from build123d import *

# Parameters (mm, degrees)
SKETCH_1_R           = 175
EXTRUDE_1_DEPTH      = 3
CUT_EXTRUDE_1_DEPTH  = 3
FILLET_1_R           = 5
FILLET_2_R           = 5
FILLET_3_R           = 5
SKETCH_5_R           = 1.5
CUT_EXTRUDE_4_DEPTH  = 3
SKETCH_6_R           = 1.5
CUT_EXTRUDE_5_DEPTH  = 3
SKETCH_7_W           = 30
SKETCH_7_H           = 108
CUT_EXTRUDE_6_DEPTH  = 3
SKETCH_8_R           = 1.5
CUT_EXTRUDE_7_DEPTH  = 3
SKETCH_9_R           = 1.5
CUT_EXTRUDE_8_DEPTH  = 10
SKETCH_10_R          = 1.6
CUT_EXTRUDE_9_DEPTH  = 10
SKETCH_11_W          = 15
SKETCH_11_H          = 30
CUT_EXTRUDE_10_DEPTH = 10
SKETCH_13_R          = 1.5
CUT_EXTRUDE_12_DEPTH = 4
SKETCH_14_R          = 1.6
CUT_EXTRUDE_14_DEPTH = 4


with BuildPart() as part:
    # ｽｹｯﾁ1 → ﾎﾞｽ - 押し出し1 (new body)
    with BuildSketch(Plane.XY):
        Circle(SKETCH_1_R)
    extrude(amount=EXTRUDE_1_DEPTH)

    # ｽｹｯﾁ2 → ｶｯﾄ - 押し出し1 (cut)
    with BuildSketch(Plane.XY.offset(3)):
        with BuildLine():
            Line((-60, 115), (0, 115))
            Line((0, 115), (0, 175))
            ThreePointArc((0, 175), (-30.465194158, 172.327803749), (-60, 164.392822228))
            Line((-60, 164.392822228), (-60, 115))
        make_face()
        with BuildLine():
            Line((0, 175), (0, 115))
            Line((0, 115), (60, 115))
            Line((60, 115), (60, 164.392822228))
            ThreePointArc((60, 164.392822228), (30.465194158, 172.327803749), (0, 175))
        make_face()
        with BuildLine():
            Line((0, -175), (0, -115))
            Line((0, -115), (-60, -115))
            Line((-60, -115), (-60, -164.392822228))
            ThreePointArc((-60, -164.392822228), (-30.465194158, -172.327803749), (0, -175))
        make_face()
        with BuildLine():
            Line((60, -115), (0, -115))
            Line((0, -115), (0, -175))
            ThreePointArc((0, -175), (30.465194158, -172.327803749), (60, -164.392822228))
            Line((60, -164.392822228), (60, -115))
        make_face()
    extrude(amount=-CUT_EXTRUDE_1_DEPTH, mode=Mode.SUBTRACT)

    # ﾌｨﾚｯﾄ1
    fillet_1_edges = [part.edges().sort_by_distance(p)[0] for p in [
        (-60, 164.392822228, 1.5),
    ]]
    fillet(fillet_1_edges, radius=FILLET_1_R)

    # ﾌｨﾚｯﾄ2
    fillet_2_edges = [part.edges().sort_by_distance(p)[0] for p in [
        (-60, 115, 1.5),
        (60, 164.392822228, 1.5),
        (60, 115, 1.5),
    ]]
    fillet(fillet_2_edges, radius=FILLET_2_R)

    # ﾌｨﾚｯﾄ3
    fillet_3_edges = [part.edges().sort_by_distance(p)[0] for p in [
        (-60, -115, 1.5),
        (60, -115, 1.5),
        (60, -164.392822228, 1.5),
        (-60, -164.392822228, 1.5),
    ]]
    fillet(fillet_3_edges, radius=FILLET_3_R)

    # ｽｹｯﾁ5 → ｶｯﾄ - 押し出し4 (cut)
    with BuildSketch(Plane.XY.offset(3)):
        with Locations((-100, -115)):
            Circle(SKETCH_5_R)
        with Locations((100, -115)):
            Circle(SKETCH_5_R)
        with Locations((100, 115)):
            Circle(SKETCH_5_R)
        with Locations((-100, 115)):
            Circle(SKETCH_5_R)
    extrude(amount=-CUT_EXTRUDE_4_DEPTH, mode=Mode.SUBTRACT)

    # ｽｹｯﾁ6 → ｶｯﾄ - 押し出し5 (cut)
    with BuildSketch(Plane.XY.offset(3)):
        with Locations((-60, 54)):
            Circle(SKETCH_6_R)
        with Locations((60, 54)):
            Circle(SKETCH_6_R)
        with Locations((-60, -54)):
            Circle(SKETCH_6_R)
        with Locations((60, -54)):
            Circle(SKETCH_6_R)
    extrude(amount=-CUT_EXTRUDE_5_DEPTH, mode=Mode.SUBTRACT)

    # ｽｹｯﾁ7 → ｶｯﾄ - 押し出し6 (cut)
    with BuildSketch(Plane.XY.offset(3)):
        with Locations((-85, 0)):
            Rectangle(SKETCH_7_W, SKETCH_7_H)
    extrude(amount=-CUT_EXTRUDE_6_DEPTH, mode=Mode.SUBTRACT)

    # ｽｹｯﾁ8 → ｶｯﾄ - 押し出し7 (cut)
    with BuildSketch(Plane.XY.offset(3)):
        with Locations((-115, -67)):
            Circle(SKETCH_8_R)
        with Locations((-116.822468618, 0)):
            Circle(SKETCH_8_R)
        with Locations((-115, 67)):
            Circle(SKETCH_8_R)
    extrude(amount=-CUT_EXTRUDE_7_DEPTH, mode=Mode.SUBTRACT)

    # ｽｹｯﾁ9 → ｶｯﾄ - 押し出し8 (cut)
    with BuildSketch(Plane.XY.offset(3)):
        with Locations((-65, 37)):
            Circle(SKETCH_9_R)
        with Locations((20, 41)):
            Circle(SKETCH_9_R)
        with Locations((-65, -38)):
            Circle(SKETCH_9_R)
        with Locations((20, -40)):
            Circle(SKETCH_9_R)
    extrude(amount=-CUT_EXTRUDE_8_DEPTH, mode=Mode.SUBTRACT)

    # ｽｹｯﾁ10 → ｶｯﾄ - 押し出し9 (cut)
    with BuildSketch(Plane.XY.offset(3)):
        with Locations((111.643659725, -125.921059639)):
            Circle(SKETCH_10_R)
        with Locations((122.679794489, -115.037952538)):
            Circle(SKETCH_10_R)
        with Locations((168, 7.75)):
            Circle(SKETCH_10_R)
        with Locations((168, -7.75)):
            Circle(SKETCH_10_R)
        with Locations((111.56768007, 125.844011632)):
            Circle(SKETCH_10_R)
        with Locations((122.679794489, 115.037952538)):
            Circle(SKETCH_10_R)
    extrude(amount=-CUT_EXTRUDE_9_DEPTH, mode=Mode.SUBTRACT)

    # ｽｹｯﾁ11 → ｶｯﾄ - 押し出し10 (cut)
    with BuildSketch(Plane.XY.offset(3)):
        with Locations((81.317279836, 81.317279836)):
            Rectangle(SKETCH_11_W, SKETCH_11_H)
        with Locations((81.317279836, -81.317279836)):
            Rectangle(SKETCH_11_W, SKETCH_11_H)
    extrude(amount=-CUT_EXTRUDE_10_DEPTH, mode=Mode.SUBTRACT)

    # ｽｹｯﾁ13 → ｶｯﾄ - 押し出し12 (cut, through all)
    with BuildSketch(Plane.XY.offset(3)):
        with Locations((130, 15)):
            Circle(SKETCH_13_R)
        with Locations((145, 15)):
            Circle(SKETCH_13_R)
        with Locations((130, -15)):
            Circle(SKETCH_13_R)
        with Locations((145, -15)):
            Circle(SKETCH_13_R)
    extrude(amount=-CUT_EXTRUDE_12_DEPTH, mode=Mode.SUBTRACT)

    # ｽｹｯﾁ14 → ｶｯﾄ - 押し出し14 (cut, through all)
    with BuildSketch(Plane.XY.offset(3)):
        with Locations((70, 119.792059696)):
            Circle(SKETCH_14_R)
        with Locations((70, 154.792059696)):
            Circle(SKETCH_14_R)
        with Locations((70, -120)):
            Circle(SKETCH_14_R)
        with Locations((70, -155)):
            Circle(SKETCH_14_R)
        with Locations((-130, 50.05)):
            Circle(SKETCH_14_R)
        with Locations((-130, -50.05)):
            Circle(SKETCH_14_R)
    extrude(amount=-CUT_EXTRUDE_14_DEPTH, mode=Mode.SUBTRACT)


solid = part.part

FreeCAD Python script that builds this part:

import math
import FreeCAD as App
import Part
import Sketcher


def edges_at(feature, points):
    """Names of the edges that pass closest to the given points."""
    edges = feature.Shape.Edges
    near = lambda p: min(range(len(edges)), key=lambda i: edges[i].distToShape(Part.Vertex(*p))[0])
    return sorted({f"Edge{near(p) + 1}" for p in points})


def add_polygon(sketch, points):
    """Adds a closed chain of lines whose ends are joined by coincident constraints."""
    first, n = sketch.GeometryCount, len(points)
    for a, b in zip(points, points[1:] + points[:1]):
        sketch.addGeometry(Part.LineSegment(App.Vector(*a, 0), App.Vector(*b, 0)), False)
    for i in range(n):
        sketch.addConstraint(Sketcher.Constraint("Coincident", first + i, 2, first + (i + 1) % n, 1))

doc = App.newDocument("Part")
body = doc.addObject("PartDesign::Body", "Body")

sketch1 = body.newObject("Sketcher::SketchObject", "Sketch")
sketch1.AttachmentSupport = (doc.getObject("XY_Plane"), [""])
sketch1.MapMode = "FlatFace"
sketch1.addGeometry(Part.Circle(App.Vector(0, 0, 0), App.Vector(0, 0, 1), 175), False)
sketch1.addConstraint(Sketcher.Constraint("Coincident", 0, 3, -1, 1))
sketch1.addConstraint(Sketcher.Constraint("Diameter", 0, 350.0))
pad1 = body.newObject("PartDesign::Pad", "Pad")
pad1.Profile = sketch1
pad1.Length = 3

sketch2 = body.newObject("Sketcher::SketchObject", "Sketch001")
sketch2.AttachmentSupport = (doc.getObject("XY_Plane"), [""])
sketch2.MapMode = "FlatFace"
sketch2.AttachmentOffset = App.Placement(App.Vector(0, 0, 3), App.Rotation())
sketch2.addGeometry(Part.LineSegment(App.Vector(-60, 115, 0), App.Vector(60, 115, 0)), False)
sketch2.addGeometry(Part.LineSegment(App.Vector(60, 115, 0), App.Vector(60, 164.392822, 0)), False)
sketch2.addGeometry(Part.ArcOfCircle(Part.Circle(App.Vector(0, 0, 0), App.Vector(0, 0, 1), 175), math.radians(69.948957), math.radians(90)), False)
sketch2.addGeometry(Part.ArcOfCircle(Part.Circle(App.Vector(0, 0, 0), App.Vector(0, 0, 1), 175), math.radians(90), math.radians(110.051043)), False)
sketch2.addGeometry(Part.LineSegment(App.Vector(-60, 164.392822, 0), App.Vector(-60, 115, 0)), False)
sketch2.addGeometry(Part.LineSegment(App.Vector(-60, -115, 0), App.Vector(-60, -164.392822, 0)), False)
sketch2.addGeometry(Part.ArcOfCircle(Part.Circle(App.Vector(0, 0, 0), App.Vector(0, 0, 1), 175), math.radians(-110.051043), math.radians(-90)), False)
sketch2.addGeometry(Part.ArcOfCircle(Part.Circle(App.Vector(0, 0, 0), App.Vector(0, 0, 1), 175), math.radians(-90), math.radians(-69.948957)), False)
sketch2.addGeometry(Part.LineSegment(App.Vector(60, -164.392822, 0), App.Vector(60, -115, 0)), False)
sketch2.addGeometry(Part.LineSegment(App.Vector(60, -115, 0), App.Vector(-60, -115, 0)), False)
sketch2.addConstraint(Sketcher.Constraint("Coincident", 0, 2, 1, 1))
sketch2.addConstraint(Sketcher.Constraint("Coincident", 1, 2, 2, 1))
sketch2.addConstraint(Sketcher.Constraint("Tangent", 2, 2, 3, 1))
sketch2.addConstraint(Sketcher.Constraint("Coincident", 3, 2, 4, 1))
sketch2.addConstraint(Sketcher.Constraint("Coincident", 4, 2, 0, 1))
sketch2.addConstraint(Sketcher.Constraint("Coincident", 5, 2, 6, 1))
sketch2.addConstraint(Sketcher.Constraint("Tangent", 6, 2, 7, 1))
sketch2.addConstraint(Sketcher.Constraint("Coincident", 7, 2, 8, 1))
sketch2.addConstraint(Sketcher.Constraint("Coincident", 8, 2, 9, 1))
sketch2.addConstraint(Sketcher.Constraint("Coincident", 9, 2, 5, 1))
sketch2.addConstraint(Sketcher.Constraint("Horizontal", 0))
sketch2.addConstraint(Sketcher.Constraint("Vertical", 1))
sketch2.addConstraint(Sketcher.Constraint("Vertical", 4))
sketch2.addConstraint(Sketcher.Constraint("Vertical", 5))
sketch2.addConstraint(Sketcher.Constraint("Vertical", 8))
sketch2.addConstraint(Sketcher.Constraint("Horizontal", 9))
sketch2.addConstraint(Sketcher.Constraint("Coincident", 2, 3, -1, 1))
sketch2.addConstraint(Sketcher.Constraint("Coincident", 6, 3, -1, 1))
sketch2.addConstraint(Sketcher.Constraint("Equal", 2, 3))
sketch2.addConstraint(Sketcher.Constraint("Equal", 3, 6))
sketch2.addConstraint(Sketcher.Constraint("Equal", 6, 7))
sketch2.addConstraint(Sketcher.Constraint("Symmetric", 4, 2, 8, 2, -1, 1))
sketch2.addConstraint(Sketcher.Constraint("PointOnObject", 2, 2, -2))
sketch2.addConstraint(Sketcher.Constraint("PointOnObject", 6, 2, -2))
sketch2.addConstraint(Sketcher.Constraint("Horizontal", 1, 2, 3, 2))
sketch2.addConstraint(Sketcher.Constraint("Horizontal", 5, 2, 7, 2))
sketch2.addConstraint(Sketcher.Constraint("Radius", 2, 175.0))
sketch2.addConstraint(Sketcher.Constraint("DistanceX", 0, 1, 0, 2, 120.0))
sketch2.addConstraint(Sketcher.Constraint("DistanceY", -1, 1, 0, 2, 115.0))
pocket1 = body.newObject("PartDesign::Pocket", "Pocket")
pocket1.Profile = sketch2
pocket1.Length = 3
doc.recompute()

fillet = body.newObject("PartDesign::Fillet", "Fillet")
fillet.Base = (pocket1, edges_at(pocket1, [(-60, 164.393, 1.5)]))
fillet.Radius = 5
doc.recompute()

fillet2 = body.newObject("PartDesign::Fillet", "Fillet001")
fillet2.Base = (fillet, edges_at(fillet, [(-60, 115, 1.5), (60, 164.393, 1.5), (60, 115, 1.5)]))
fillet2.Radius = 5
doc.recompute()

fillet3 = body.newObject("PartDesign::Fillet", "Fillet002")
fillet3.Base = (fillet2, edges_at(fillet2, [
    (-60, -115, 1.5),
    (60, -115, 1.5),
    (60, -164.393, 1.5),
    (-60, -164.393, 1.5),
]))
fillet3.Radius = 5

sketch3 = body.newObject("Sketcher::SketchObject", "Sketch002")
sketch3.AttachmentSupport = (doc.getObject("XY_Plane"), [""])
sketch3.MapMode = "FlatFace"
sketch3.AttachmentOffset = App.Placement(App.Vector(0, 0, 3), App.Rotation())
sketch3.addGeometry(Part.Circle(App.Vector(-100, -115, 0), App.Vector(0, 0, 1), 1.5), False)
sketch3.addGeometry(Part.Circle(App.Vector(100, -115, 0), App.Vector(0, 0, 1), 1.5), False)
sketch3.addGeometry(Part.Circle(App.Vector(100, 115, 0), App.Vector(0, 0, 1), 1.5), False)
sketch3.addGeometry(Part.Circle(App.Vector(-100, 115, 0), App.Vector(0, 0, 1), 1.5), False)
sketch3.addConstraint(Sketcher.Constraint("Equal", 0, 1))
sketch3.addConstraint(Sketcher.Constraint("Equal", 1, 2))
sketch3.addConstraint(Sketcher.Constraint("Equal", 2, 3))
sketch3.addConstraint(Sketcher.Constraint("Symmetric", 0, 3, 2, 3, -1, 1))
sketch3.addConstraint(Sketcher.Constraint("Symmetric", 1, 3, 3, 3, -1, 1))
sketch3.addConstraint(Sketcher.Constraint("Symmetric", 0, 3, 1, 3, -2))
sketch3.addConstraint(Sketcher.Constraint("Diameter", 0, 3.0))
sketch3.addConstraint(Sketcher.Constraint("DistanceX", 0, 3, -1, 1, 100.0))
sketch3.addConstraint(Sketcher.Constraint("DistanceY", 0, 3, -1, 1, 115.0))
pocket2 = body.newObject("PartDesign::Pocket", "Pocket001")
pocket2.Profile = sketch3
pocket2.Length = 3

sketch4 = body.newObject("Sketcher::SketchObject", "Sketch003")
sketch4.AttachmentSupport = (doc.getObject("XY_Plane"), [""])
sketch4.MapMode = "FlatFace"
sketch4.AttachmentOffset = App.Placement(App.Vector(0, 0, 3), App.Rotation())
sketch4.addGeometry(Part.Circle(App.Vector(-60, 54, 0), App.Vector(0, 0, 1), 1.5), False)
sketch4.addGeometry(Part.Circle(App.Vector(60, 54, 0), App.Vector(0, 0, 1), 1.5), False)
sketch4.addGeometry(Part.Circle(App.Vector(-60, -54, 0), App.Vector(0, 0, 1), 1.5), False)
sketch4.addGeometry(Part.Circle(App.Vector(60, -54, 0), App.Vector(0, 0, 1), 1.5), False)
sketch4.addConstraint(Sketcher.Constraint("Equal", 0, 1))
sketch4.addConstraint(Sketcher.Constraint("Equal", 1, 2))
sketch4.addConstraint(Sketcher.Constraint("Equal", 2, 3))
sketch4.addConstraint(Sketcher.Constraint("Symmetric", 1, 3, 2, 3, -1, 1))
sketch4.addConstraint(Sketcher.Constraint("Symmetric", 0, 3, 3, 3, -1, 1))
sketch4.addConstraint(Sketcher.Constraint("Symmetric", 0, 3, 1, 3, -2))
sketch4.addConstraint(Sketcher.Constraint("Diameter", 0, 3.0))
sketch4.addConstraint(Sketcher.Constraint("DistanceX", 0, 3, -1, 1, 60.0))
sketch4.addConstraint(Sketcher.Constraint("DistanceY", -1, 1, 0, 3, 54.0))
pocket3 = body.newObject("PartDesign::Pocket", "Pocket002")
pocket3.Profile = sketch4
pocket3.Length = 3

sketch5 = body.newObject("Sketcher::SketchObject", "Sketch004")
sketch5.AttachmentSupport = (doc.getObject("XY_Plane"), [""])
sketch5.MapMode = "FlatFace"
sketch5.AttachmentOffset = App.Placement(App.Vector(0, 0, 3), App.Rotation())
add_polygon(sketch5, [(-100, 54), (-100, -54), (-70, -54), (-70, 54)])
sketch5.addConstraint(Sketcher.Constraint("Vertical", 0))
sketch5.addConstraint(Sketcher.Constraint("Horizontal", 1))
sketch5.addConstraint(Sketcher.Constraint("Vertical", 2))
sketch5.addConstraint(Sketcher.Constraint("Horizontal", 3))
sketch5.addConstraint(Sketcher.Constraint("DistanceX", 1, 1, 1, 2, 30.0))
sketch5.addConstraint(Sketcher.Constraint("DistanceY", 0, 2, 0, 1, 108.0))
sketch5.addConstraint(Sketcher.Constraint("DistanceX", 0, 2, -1, 1, 100.0))
sketch5.addConstraint(Sketcher.Constraint("DistanceY", 0, 2, -1, 1, 54.0))
pocket4 = body.newObject("PartDesign::Pocket", "Pocket003")
pocket4.Profile = sketch5
pocket4.Length = 3

sketch6 = body.newObject("Sketcher::SketchObject", "Sketch005")
sketch6.AttachmentSupport = (doc.getObject("XY_Plane"), [""])
sketch6.MapMode = "FlatFace"
sketch6.AttachmentOffset = App.Placement(App.Vector(0, 0, 3), App.Rotation())
sketch6.addGeometry(Part.Circle(App.Vector(-115, -67, 0), App.Vector(0, 0, 1), 1.5), False)
sketch6.addGeometry(Part.Circle(App.Vector(-116.822469, 0, 0), App.Vector(0, 0, 1), 1.5), False)
sketch6.addGeometry(Part.Circle(App.Vector(-115, 67, 0), App.Vector(0, 0, 1), 1.5), False)
sketch6.addConstraint(Sketcher.Constraint("Equal", 0, 1))
sketch6.addConstraint(Sketcher.Constraint("Equal", 1, 2))
sketch6.addConstraint(Sketcher.Constraint("Symmetric", 0, 3, 2, 3, -1))
sketch6.addConstraint(Sketcher.Constraint("PointOnObject", 1, 3, -1))
sketch6.addConstraint(Sketcher.Constraint("Diameter", 0, 3.0))
sketch6.addConstraint(Sketcher.Constraint("DistanceX", 0, 3, -1, 1, 115.0))
sketch6.addConstraint(Sketcher.Constraint("DistanceY", 0, 3, -1, 1, 67.0))
sketch6.addConstraint(Sketcher.Constraint("DistanceX", 1, 3, -1, 1, 116.822469))
pocket5 = body.newObject("PartDesign::Pocket", "Pocket004")
pocket5.Profile = sketch6
pocket5.Length = 3

sketch7 = body.newObject("Sketcher::SketchObject", "Sketch006")
sketch7.AttachmentSupport = (doc.getObject("XY_Plane"), [""])
sketch7.MapMode = "FlatFace"
sketch7.AttachmentOffset = App.Placement(App.Vector(0, 0, 3), App.Rotation())
sketch7.addGeometry(Part.Circle(App.Vector(-65, 37, 0), App.Vector(0, 0, 1), 1.5), False)
sketch7.addGeometry(Part.Circle(App.Vector(20, 41, 0), App.Vector(0, 0, 1), 1.5), False)
sketch7.addGeometry(Part.Circle(App.Vector(-65, -38, 0), App.Vector(0, 0, 1), 1.5), False)
sketch7.addGeometry(Part.Circle(App.Vector(20, -40, 0), App.Vector(0, 0, 1), 1.5), False)
sketch7.addConstraint(Sketcher.Constraint("Equal", 0, 1))
sketch7.addConstraint(Sketcher.Constraint("Equal", 1, 2))
sketch7.addConstraint(Sketcher.Constraint("Equal", 2, 3))
sketch7.addConstraint(Sketcher.Constraint("Vertical", 0, 3, 2, 3))
sketch7.addConstraint(Sketcher.Constraint("Vertical", 1, 3, 3, 3))
sketch7.addConstraint(Sketcher.Constraint("Diameter", 0, 3.0))
sketch7.addConstraint(Sketcher.Constraint("DistanceX", 0, 3, -1, 1, 65.0))
sketch7.addConstraint(Sketcher.Constraint("DistanceY", -1, 1, 0, 3, 37.0))
sketch7.addConstraint(Sketcher.Constraint("DistanceX", -1, 1, 1, 3, 20.0))
sketch7.addConstraint(Sketcher.Constraint("DistanceY", -1, 1, 1, 3, 41.0))
sketch7.addConstraint(Sketcher.Constraint("DistanceY", 2, 3, -1, 1, 38.0))
sketch7.addConstraint(Sketcher.Constraint("DistanceY", 3, 3, -1, 1, 40.0))
pocket6 = body.newObject("PartDesign::Pocket", "Pocket005")
pocket6.Profile = sketch7
pocket6.Length = 10

sketch8 = body.newObject("Sketcher::SketchObject", "Sketch007")
sketch8.AttachmentSupport = (doc.getObject("XY_Plane"), [""])
sketch8.MapMode = "FlatFace"
sketch8.AttachmentOffset = App.Placement(App.Vector(0, 0, 3), App.Rotation())
sketch8.addGeometry(Part.Circle(App.Vector(111.64366, -125.92106, 0), App.Vector(0, 0, 1), 1.6), False)
sketch8.addGeometry(Part.Circle(App.Vector(122.679794, -115.037953, 0), App.Vector(0, 0, 1), 1.6), False)
sketch8.addGeometry(Part.Circle(App.Vector(168, 7.75, 0), App.Vector(0, 0, 1), 1.6), False)
sketch8.addGeometry(Part.Circle(App.Vector(168, -7.75, 0), App.Vector(0, 0, 1), 1.6), False)
sketch8.addGeometry(Part.Circle(App.Vector(111.56768, 125.844012, 0), App.Vector(0, 0, 1), 1.6), False)
sketch8.addGeometry(Part.Circle(App.Vector(122.679794, 115.037953, 0), App.Vector(0, 0, 1), 1.6), False)
sketch8.addConstraint(Sketcher.Constraint("Equal", 0, 1))
sketch8.addConstraint(Sketcher.Constraint("Equal", 1, 2))
sketch8.addConstraint(Sketcher.Constraint("Equal", 2, 3))
sketch8.addConstraint(Sketcher.Constraint("Equal", 3, 4))
sketch8.addConstraint(Sketcher.Constraint("Equal", 4, 5))
sketch8.addConstraint(Sketcher.Constraint("Symmetric", 2, 3, 3, 3, -1))
sketch8.addConstraint(Sketcher.Constraint("Symmetric", 1, 3, 5, 3, -1))
sketch8.addConstraint(Sketcher.Constraint("Diameter", 0, 3.2))
sketch8.addConstraint(Sketcher.Constraint("DistanceX", -1, 1, 2, 3, 168.0))
sketch8.addConstraint(Sketcher.Constraint("DistanceY", 3, 3, 2, 3, 15.5))
sketch8.addConstraint(Sketcher.Constraint("DistanceX", -1, 1, 0, 3, 111.64366))
sketch8.addConstraint(Sketcher.Constraint("DistanceY", 0, 3, -1, 1, 125.92106))
sketch8.addConstraint(Sketcher.Constraint("DistanceX", -1, 1, 4, 3, 111.56768))
sketch8.addConstraint(Sketcher.Constraint("DistanceY", -1, 1, 4, 3, 125.844012))
sketch8.addConstraint(Sketcher.Constraint("DistanceY", 5, 3, 4, 3, 10.806059))
sketch8.addConstraint(Sketcher.Constraint("DistanceX", -1, 1, 1, 3, 122.679794))
pocket7 = body.newObject("PartDesign::Pocket", "Pocket006")
pocket7.Profile = sketch8
pocket7.Length = 10

sketch9 = body.newObject("Sketcher::SketchObject", "Sketch008")
sketch9.AttachmentSupport = (doc.getObject("XY_Plane"), [""])
sketch9.MapMode = "FlatFace"
sketch9.AttachmentOffset = App.Placement(App.Vector(0, 0, 3), App.Rotation())
add_polygon(sketch9, [(73.81728, 96.31728), (73.81728, 66.31728), (88.81728, 66.31728), (88.81728, 96.31728)])
add_polygon(sketch9, [(73.81728, -66.31728), (73.81728, -96.31728), (88.81728, -96.31728), (88.81728, -66.31728)])
sketch9.addConstraint(Sketcher.Constraint("Vertical", 0))
sketch9.addConstraint(Sketcher.Constraint("Horizontal", 1))
sketch9.addConstraint(Sketcher.Constraint("Vertical", 2))
sketch9.addConstraint(Sketcher.Constraint("Horizontal", 3))
sketch9.addConstraint(Sketcher.Constraint("Vertical", 4))
sketch9.addConstraint(Sketcher.Constraint("Horizontal", 5))
sketch9.addConstraint(Sketcher.Constraint("Vertical", 6))
sketch9.addConstraint(Sketcher.Constraint("Horizontal", 7))
sketch9.addConstraint(Sketcher.Constraint("Symmetric", 3, 2, 4, 2, -1))
sketch9.addConstraint(Sketcher.Constraint("Symmetric", 1, 2, 6, 2, -1))
sketch9.addConstraint(Sketcher.Constraint("DistanceX", 1, 1, 1, 2, 15.0))
sketch9.addConstraint(Sketcher.Constraint("DistanceY", 0, 2, 0, 1, 30.0))
sketch9.addConstraint(Sketcher.Constraint("DistanceX", -1, 1, 0, 2, 73.81728))
sketch9.addConstraint(Sketcher.Constraint("DistanceY", -1, 1, 0, 2, 66.31728))
pocket8 = body.newObject("PartDesign::Pocket", "Pocket007")
pocket8.Profile = sketch9
pocket8.Length = 10

sketch10 = body.newObject("Sketcher::SketchObject", "Sketch009")
sketch10.AttachmentSupport = (doc.getObject("XY_Plane"), [""])
sketch10.MapMode = "FlatFace"
sketch10.AttachmentOffset = App.Placement(App.Vector(0, 0, 3), App.Rotation())
sketch10.addGeometry(Part.Circle(App.Vector(130, 15, 0), App.Vector(0, 0, 1), 1.5), False)
sketch10.addGeometry(Part.Circle(App.Vector(145, 15, 0), App.Vector(0, 0, 1), 1.5), False)
sketch10.addGeometry(Part.Circle(App.Vector(130, -15, 0), App.Vector(0, 0, 1), 1.5), False)
sketch10.addGeometry(Part.Circle(App.Vector(145, -15, 0), App.Vector(0, 0, 1), 1.5), False)
sketch10.addConstraint(Sketcher.Constraint("Equal", 0, 1))
sketch10.addConstraint(Sketcher.Constraint("Equal", 1, 2))
sketch10.addConstraint(Sketcher.Constraint("Equal", 2, 3))
sketch10.addConstraint(Sketcher.Constraint("Symmetric", 0, 3, 2, 3, -1))
sketch10.addConstraint(Sketcher.Constraint("Symmetric", 1, 3, 3, 3, -1))
sketch10.addConstraint(Sketcher.Constraint("Horizontal", 0, 3, 1, 3))
sketch10.addConstraint(Sketcher.Constraint("Diameter", 0, 3.0))
sketch10.addConstraint(Sketcher.Constraint("DistanceX", -1, 1, 0, 3, 130.0))
sketch10.addConstraint(Sketcher.Constraint("DistanceY", -1, 1, 0, 3, 15.0))
sketch10.addConstraint(Sketcher.Constraint("DistanceX", -1, 1, 1, 3, 145.0))
pocket9 = body.newObject("PartDesign::Pocket", "Pocket008")
pocket9.Profile = sketch10
pocket9.Type = "ThroughAll"

sketch11 = body.newObject("Sketcher::SketchObject", "Sketch010")
sketch11.AttachmentSupport = (doc.getObject("XY_Plane"), [""])
sketch11.MapMode = "FlatFace"
sketch11.AttachmentOffset = App.Placement(App.Vector(0, 0, 3), App.Rotation())
sketch11.addGeometry(Part.Circle(App.Vector(70, 119.79206, 0), App.Vector(0, 0, 1), 1.6), False)
sketch11.addGeometry(Part.Circle(App.Vector(70, 154.79206, 0), App.Vector(0, 0, 1), 1.6), False)
sketch11.addGeometry(Part.Circle(App.Vector(70, -120, 0), App.Vector(0, 0, 1), 1.6), False)
sketch11.addGeometry(Part.Circle(App.Vector(70, -155, 0), App.Vector(0, 0, 1), 1.6), False)
sketch11.addGeometry(Part.Circle(App.Vector(-130, 50.05, 0), App.Vector(0, 0, 1), 1.6), False)
sketch11.addGeometry(Part.Circle(App.Vector(-130, -50.05, 0), App.Vector(0, 0, 1), 1.6), False)
sketch11.addConstraint(Sketcher.Constraint("Equal", 0, 1))
sketch11.addConstraint(Sketcher.Constraint("Equal", 1, 2))
sketch11.addConstraint(Sketcher.Constraint("Equal", 2, 3))
sketch11.addConstraint(Sketcher.Constraint("Equal", 3, 4))
sketch11.addConstraint(Sketcher.Constraint("Equal", 4, 5))
sketch11.addConstraint(Sketcher.Constraint("Symmetric", 4, 3, 5, 3, -1))
sketch11.addConstraint(Sketcher.Constraint("Vertical", 0, 3, 1, 3))
sketch11.addConstraint(Sketcher.Constraint("Vertical", 1, 3, 2, 3))
sketch11.addConstraint(Sketcher.Constraint("Vertical", 2, 3, 3, 3))
sketch11.addConstraint(Sketcher.Constraint("Diameter", 0, 3.2))
sketch11.addConstraint(Sketcher.Constraint("DistanceX", -1, 1, 0, 3, 70.0))
sketch11.addConstraint(Sketcher.Constraint("DistanceY", 2, 3, -1, 1, 120.0))
sketch11.addConstraint(Sketcher.Constraint("DistanceY", 3, 3, -1, 1, 155.0))
sketch11.addConstraint(Sketcher.Constraint("DistanceX", 4, 3, -1, 1, 130.0))
sketch11.addConstraint(Sketcher.Constraint("DistanceY", 0, 3, 1, 3, 35.0))
sketch11.addConstraint(Sketcher.Constraint("DistanceY", 5, 3, 4, 3, 100.1))
sketch11.addConstraint(Sketcher.Constraint("DistanceY", -1, 1, 0, 3, 119.79206))
pocket10 = body.newObject("PartDesign::Pocket", "Pocket009")
pocket10.Profile = sketch11
pocket10.Type = "ThroughAll"

doc.recompute()
